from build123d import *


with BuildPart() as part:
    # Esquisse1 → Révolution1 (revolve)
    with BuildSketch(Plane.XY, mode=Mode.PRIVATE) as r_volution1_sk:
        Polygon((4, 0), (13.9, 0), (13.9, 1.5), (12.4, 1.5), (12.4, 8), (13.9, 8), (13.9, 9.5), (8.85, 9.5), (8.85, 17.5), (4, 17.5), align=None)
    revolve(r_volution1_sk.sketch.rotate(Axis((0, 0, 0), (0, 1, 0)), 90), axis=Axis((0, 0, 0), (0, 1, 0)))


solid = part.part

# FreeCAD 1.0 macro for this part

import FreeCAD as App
import Part
import Sketcher


def add_polygon(sketch, points):
    """Adds a closed chain of lines whose ends are joined by coincident constraints."""
    first, n = sketch.GeometryCount, len(points)
    for a, b in zip(points, points[1:] + points[:1]):
        sketch.addGeometry(Part.LineSegment(App.Vector(*a, 0), App.Vector(*b, 0)), False)
    for i in range(n):
        sketch.addConstraint(Sketcher.Constraint("Coincident", first + i, 2, first + (i + 1) % n, 1))

doc = App.newDocument("Part")
body = doc.addObject("PartDesign::Body", "Body")

# Sketch on XY plane
sketch1 = body.newObject("Sketcher::SketchObject", "Sketch")
sketch1.AttachmentSupport = (doc.getObject("XY_Plane"), [""])
sketch1.MapMode = "FlatFace"
add_polygon(sketch1, [(4, 0), (13.9, 0), (13.9, 1.5), (12.4, 1.5), (12.4, 8), (13.9, 8), (13.9, 9.5), (8.8, 9.5), (8.8, 17.5), (4, 17.5)])  # lines 0-9
sketch1.addConstraint([
    Sketcher.Constraint("Horizontal", 0),
    Sketcher.Constraint("Vertical", 1),
    Sketcher.Constraint("Horizontal", 2),
    Sketcher.Constraint("Vertical", 3),
    Sketcher.Constraint("Horizontal", 4),
    Sketcher.Constraint("Vertical", 5),
    Sketcher.Constraint("Horizontal", 6),
    Sketcher.Constraint("Vertical", 7),
    Sketcher.Constraint("Horizontal", 8),
    Sketcher.Constraint("Vertical", 9),
    Sketcher.Constraint("PointOnObject", 0, 2, -1),
    Sketcher.Constraint("Vertical", 1, 2, 4, 2),
    Sketcher.Constraint("Equal", 4, 1),
    Sketcher.Constraint("Equal", 1, 5),
    Sketcher.Constraint("DistanceY", 7, 1, 7, 2, 8.0),
    Sketcher.Constraint("DistanceX", 0, 1, 0, 2, 9.9),
    Sketcher.Constraint("DistanceX", 2, 2, 2, 1, 1.5),
    Sketcher.Constraint("DistanceY", 3, 1, 3, 2, 6.5),
    Sketcher.Constraint("DistanceX", -1, 1, 8, 2, 4.0),
    Sketcher.Constraint("DistanceX", 6, 2, 6, 1, 5.05),
])
revolution = body.newObject("PartDesign::Revolution", "Revolution")
revolution.Profile = sketch1
revolution.ReferenceAxis = (sketch1, ["V_Axis"])
revolution.Angle = 360

doc.recompute()
